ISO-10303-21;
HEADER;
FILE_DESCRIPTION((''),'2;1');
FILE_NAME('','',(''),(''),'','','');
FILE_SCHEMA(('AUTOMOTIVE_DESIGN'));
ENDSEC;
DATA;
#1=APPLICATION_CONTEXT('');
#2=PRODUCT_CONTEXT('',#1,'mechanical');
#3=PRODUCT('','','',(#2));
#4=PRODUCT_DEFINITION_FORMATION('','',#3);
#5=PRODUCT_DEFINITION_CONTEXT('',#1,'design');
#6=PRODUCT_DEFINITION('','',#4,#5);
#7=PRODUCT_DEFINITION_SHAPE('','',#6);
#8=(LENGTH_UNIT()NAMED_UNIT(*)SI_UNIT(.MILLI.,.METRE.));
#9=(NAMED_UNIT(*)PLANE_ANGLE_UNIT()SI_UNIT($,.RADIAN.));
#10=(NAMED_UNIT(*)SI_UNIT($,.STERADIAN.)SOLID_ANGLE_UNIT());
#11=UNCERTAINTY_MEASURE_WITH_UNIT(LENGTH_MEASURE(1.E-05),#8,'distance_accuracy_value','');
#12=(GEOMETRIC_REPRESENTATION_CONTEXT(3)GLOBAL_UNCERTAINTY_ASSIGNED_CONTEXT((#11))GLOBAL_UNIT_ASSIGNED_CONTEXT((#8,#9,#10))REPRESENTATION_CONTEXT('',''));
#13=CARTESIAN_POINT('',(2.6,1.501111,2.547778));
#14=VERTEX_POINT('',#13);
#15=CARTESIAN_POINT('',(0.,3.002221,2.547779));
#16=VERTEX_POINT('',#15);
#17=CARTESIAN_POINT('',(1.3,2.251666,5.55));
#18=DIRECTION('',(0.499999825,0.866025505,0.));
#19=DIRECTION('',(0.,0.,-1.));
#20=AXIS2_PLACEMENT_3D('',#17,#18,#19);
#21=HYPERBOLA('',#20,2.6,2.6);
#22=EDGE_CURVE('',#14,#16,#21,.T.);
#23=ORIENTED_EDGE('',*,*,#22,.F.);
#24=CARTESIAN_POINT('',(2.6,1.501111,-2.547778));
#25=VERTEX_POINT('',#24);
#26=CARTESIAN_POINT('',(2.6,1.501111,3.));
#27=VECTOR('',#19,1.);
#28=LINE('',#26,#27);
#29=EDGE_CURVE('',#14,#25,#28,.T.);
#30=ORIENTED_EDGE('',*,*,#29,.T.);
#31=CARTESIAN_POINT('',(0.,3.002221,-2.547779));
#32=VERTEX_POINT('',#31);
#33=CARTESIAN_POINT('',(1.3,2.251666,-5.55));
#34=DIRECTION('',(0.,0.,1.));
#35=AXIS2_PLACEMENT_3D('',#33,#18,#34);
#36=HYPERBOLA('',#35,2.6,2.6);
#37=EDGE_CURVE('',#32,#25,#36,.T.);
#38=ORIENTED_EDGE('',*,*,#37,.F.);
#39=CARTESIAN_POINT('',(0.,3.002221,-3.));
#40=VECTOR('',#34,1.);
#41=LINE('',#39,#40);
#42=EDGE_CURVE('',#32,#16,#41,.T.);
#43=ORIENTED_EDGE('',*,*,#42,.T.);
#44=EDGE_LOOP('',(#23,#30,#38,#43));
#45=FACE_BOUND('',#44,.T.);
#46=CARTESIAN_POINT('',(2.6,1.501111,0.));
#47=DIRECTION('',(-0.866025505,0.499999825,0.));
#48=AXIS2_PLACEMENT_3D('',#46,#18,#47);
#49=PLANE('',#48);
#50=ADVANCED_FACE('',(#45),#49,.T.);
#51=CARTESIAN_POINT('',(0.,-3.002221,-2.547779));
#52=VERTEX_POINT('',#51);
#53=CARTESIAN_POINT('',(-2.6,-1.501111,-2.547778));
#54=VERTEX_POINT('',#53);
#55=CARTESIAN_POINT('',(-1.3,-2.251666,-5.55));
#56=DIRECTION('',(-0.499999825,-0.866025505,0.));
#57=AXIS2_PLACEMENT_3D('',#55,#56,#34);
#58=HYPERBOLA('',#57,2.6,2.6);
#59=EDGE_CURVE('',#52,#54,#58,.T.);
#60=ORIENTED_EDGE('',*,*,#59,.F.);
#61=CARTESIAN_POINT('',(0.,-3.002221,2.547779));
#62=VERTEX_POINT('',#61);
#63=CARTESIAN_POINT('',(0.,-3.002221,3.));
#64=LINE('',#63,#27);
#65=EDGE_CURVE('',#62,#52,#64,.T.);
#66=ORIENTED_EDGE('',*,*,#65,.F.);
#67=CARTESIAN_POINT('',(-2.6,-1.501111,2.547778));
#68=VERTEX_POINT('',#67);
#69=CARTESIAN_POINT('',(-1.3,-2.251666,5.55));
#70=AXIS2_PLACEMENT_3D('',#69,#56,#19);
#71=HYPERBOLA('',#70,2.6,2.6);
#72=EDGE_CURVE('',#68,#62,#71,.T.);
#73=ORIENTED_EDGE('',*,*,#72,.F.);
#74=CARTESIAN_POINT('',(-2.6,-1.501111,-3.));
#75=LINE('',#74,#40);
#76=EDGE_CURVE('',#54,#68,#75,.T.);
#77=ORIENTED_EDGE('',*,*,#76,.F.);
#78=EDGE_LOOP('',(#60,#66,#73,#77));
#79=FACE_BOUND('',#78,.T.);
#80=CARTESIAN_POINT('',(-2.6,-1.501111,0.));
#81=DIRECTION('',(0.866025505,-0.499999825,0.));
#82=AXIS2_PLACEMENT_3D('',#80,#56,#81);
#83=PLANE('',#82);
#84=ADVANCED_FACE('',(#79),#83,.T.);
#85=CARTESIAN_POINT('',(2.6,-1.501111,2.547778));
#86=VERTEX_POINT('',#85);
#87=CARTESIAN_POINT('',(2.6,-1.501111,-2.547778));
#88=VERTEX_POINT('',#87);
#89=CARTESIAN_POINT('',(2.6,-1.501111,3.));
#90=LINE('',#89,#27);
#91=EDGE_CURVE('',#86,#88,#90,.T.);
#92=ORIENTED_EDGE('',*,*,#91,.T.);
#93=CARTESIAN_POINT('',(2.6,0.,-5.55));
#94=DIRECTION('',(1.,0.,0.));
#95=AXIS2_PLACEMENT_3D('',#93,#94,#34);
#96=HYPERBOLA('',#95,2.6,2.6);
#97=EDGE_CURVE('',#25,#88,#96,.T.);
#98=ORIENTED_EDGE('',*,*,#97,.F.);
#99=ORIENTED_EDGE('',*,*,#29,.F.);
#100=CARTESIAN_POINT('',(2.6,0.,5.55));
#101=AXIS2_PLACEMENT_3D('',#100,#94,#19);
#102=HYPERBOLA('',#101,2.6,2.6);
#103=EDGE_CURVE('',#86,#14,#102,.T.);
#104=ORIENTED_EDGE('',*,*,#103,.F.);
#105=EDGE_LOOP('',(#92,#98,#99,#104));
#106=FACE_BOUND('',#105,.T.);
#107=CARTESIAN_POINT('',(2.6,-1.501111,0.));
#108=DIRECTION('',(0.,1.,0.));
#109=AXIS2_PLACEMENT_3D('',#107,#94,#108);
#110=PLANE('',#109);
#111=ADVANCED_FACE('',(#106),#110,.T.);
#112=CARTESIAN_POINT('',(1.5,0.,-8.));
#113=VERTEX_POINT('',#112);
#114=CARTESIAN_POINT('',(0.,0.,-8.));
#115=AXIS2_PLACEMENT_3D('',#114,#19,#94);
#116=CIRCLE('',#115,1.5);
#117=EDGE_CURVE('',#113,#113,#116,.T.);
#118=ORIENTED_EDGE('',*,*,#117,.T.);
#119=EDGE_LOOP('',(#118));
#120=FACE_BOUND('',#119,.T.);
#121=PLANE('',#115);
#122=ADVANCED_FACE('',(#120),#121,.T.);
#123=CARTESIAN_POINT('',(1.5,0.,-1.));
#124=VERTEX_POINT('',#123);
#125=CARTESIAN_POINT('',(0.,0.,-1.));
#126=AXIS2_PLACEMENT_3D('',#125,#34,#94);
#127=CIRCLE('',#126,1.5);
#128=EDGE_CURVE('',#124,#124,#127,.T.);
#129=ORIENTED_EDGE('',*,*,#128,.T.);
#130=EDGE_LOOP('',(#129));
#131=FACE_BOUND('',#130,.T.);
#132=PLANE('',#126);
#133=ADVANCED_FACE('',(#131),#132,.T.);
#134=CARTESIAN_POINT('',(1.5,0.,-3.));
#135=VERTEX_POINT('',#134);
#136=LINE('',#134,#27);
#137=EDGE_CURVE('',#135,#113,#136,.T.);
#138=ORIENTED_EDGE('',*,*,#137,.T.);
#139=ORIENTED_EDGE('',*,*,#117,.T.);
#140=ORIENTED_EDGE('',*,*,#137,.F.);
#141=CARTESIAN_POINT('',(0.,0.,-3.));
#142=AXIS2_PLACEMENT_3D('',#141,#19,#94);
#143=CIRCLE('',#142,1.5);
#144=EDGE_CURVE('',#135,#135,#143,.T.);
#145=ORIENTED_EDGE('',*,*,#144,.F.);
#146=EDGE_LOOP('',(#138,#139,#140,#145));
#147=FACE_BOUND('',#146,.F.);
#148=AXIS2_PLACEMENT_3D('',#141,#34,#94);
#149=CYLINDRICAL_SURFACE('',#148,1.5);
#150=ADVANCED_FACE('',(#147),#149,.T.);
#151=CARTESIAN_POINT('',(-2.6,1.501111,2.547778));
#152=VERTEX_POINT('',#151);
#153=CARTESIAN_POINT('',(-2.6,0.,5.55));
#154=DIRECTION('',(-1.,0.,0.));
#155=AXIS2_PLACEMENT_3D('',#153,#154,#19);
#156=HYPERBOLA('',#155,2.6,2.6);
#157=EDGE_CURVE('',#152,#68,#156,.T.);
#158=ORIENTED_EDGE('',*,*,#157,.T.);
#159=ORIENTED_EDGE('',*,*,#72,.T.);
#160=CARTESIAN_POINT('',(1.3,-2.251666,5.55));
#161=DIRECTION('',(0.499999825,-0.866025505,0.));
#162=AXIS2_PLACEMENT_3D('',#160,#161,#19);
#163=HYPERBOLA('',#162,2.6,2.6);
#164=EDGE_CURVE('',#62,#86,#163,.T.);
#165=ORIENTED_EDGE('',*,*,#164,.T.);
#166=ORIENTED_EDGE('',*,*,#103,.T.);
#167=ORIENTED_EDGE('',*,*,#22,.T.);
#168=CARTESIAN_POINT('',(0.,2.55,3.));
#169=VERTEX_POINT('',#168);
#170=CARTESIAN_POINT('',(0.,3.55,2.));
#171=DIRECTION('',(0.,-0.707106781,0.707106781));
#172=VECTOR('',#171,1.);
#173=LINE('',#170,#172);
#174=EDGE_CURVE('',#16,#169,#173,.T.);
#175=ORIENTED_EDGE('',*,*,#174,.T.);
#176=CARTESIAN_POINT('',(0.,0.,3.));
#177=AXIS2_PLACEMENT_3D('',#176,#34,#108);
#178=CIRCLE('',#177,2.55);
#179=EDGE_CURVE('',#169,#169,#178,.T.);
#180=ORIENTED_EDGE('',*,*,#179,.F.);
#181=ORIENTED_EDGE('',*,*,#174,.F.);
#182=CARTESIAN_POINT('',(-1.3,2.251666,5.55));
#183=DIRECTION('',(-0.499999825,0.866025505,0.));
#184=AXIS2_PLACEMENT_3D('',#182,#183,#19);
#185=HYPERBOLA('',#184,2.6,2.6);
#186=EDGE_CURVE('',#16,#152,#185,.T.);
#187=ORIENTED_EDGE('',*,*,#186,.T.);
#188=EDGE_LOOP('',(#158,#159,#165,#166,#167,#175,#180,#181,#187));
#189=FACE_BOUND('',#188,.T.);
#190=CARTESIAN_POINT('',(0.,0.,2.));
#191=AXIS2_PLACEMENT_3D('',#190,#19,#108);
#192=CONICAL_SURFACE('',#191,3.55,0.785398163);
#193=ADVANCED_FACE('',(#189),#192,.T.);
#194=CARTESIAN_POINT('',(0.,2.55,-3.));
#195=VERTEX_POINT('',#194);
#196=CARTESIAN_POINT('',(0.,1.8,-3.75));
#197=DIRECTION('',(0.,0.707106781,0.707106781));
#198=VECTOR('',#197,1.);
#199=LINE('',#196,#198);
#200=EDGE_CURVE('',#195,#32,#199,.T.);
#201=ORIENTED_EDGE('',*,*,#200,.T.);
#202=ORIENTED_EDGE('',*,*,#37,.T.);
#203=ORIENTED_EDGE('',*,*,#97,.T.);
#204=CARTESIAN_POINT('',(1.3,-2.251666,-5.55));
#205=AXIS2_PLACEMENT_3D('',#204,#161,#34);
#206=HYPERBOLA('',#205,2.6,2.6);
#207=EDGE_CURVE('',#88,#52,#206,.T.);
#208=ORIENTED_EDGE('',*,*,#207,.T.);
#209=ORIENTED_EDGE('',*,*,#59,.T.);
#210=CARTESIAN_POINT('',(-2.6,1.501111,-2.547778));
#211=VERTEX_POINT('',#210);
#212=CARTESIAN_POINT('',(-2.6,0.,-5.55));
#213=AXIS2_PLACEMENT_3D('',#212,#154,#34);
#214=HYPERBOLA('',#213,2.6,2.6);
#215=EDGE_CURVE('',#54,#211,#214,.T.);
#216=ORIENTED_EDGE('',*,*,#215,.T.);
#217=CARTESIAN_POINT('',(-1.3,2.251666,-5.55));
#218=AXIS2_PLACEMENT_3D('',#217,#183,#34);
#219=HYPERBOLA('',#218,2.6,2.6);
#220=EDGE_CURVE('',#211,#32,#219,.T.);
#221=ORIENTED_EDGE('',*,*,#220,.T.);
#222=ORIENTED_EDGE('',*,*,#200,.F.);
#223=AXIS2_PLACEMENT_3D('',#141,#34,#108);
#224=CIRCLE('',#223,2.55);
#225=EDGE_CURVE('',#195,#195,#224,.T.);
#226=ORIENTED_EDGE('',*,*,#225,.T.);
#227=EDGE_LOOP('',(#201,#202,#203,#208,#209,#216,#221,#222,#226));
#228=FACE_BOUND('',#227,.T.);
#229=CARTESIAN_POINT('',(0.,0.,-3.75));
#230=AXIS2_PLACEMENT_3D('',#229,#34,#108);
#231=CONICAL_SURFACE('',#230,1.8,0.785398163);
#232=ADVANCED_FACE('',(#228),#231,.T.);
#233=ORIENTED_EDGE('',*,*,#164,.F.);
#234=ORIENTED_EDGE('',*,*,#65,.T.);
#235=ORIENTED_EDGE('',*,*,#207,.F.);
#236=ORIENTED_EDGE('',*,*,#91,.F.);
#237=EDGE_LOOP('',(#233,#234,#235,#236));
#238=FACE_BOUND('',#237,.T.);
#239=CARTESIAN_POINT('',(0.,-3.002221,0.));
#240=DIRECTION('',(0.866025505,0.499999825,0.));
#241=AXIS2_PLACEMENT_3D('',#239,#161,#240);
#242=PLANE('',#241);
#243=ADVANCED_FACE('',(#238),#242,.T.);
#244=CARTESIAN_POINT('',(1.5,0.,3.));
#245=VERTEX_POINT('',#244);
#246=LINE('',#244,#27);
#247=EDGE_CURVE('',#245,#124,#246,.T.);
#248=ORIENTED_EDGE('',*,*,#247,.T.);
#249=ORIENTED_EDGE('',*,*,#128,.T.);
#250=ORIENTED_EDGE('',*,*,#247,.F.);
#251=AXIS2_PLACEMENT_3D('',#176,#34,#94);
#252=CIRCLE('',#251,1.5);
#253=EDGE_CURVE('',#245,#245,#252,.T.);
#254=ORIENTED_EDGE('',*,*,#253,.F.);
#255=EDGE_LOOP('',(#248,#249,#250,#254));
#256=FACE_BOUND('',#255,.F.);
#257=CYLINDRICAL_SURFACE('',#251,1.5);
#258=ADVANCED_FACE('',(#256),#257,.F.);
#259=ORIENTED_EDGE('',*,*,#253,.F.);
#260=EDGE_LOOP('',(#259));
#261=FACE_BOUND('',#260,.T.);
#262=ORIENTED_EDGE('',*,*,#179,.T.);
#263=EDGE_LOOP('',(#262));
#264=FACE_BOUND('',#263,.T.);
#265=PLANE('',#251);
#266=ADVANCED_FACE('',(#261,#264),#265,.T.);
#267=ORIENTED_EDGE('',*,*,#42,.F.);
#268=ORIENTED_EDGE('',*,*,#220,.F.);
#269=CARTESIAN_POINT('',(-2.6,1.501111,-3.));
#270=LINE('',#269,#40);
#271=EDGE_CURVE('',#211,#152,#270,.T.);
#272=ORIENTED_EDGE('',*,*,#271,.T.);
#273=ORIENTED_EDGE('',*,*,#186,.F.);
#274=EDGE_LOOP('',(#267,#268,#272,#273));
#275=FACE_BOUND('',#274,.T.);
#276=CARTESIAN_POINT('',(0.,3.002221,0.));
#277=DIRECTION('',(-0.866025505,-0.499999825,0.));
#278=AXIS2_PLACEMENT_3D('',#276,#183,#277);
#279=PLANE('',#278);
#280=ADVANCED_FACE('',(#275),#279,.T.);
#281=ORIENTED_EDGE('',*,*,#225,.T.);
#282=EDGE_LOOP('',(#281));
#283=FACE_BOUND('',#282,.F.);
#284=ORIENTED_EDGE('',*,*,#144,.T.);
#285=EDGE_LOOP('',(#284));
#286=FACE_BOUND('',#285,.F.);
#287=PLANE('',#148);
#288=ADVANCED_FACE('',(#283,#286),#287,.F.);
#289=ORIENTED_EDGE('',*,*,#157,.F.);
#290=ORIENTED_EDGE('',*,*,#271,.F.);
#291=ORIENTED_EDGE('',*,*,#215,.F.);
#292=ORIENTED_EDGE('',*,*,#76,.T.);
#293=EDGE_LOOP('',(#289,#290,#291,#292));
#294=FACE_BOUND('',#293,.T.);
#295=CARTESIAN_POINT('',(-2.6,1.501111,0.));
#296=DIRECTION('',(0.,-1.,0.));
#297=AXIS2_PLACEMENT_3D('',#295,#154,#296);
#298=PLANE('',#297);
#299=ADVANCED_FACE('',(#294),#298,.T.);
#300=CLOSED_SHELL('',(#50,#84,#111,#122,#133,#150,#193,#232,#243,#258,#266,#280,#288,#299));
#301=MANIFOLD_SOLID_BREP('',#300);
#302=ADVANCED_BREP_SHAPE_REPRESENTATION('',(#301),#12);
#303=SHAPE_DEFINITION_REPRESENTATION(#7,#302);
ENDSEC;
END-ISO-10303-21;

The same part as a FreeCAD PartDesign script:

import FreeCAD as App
import Part
import Sketcher
from FreeCAD import Vector
Q = App.Units.Quantity


def add_polygon(sketch, points):
    """Adds a closed chain of lines whose ends are joined by coincident constraints."""
    first, n = sketch.GeometryCount, len(points)
    for a, b in zip(points, points[1:] + points[:1]):
        sketch.addGeometry(Part.LineSegment(App.Vector(*a, 0), App.Vector(*b, 0)), False)
    for i in range(n):
        sketch.addConstraint(Sketcher.Constraint("Coincident", first + i, 2, first + (i + 1) % n, 1))

doc = App.newDocument("Part")
body = doc.addObject("PartDesign::Body", "Body")

sketch1 = doc.addObject("Sketcher::SketchObject", "Sketch")
body.addObject(sketch1)
sketch1.AttachmentSupport = (doc.XY_Plane, [""])
sketch1.MapMode = "FlatFace"
add_polygon(sketch1, [(2.6, 1.5), (0, 3), (-2.6, 1.5), (-2.6, -1.5), (0, -3), (2.6, -1.5)])
sketch1.addConstraint([
    Sketcher.Constraint("Vertical", 2),
    Sketcher.Constraint("Vertical", 5),
    Sketcher.Constraint("Symmetric", 0, 2, 3, 2, -1, 1),
    Sketcher.Constraint("Symmetric", 1, 2, 4, 2, -1, 1),
    Sketcher.Constraint("PointOnObject", 0, 2, -2),
    Sketcher.Constraint("Parallel", 0, 3),
    Sketcher.Constraint("Horizontal", 2, 2, 4, 2),
    Sketcher.Constraint("Angle", 0, Q("150.000012 deg")),
    Sketcher.Constraint("DistanceX", 1, 2, -1, 1, 2.6),
    Sketcher.Constraint("DistanceY", 2, 2, 2, 1, 3.002222),
])
pad1 = doc.addObject("PartDesign::Pad", "Pad")
body.addObject(pad1)
pad1.Profile = sketch1
pad1.Length = 6
pad1.Midplane = True

sketch2 = doc.addObject("Sketcher::SketchObject", "Sketch001")
body.addObject(sketch2)
sketch2.AttachmentSupport = (doc.XY_Plane, [""])
sketch2.MapMode = "FlatFace"
sketch2.AttachmentOffset = App.Placement(Vector(0, 0, 3), App.Rotation())
sketch2.addGeometry(Part.Circle(Vector(0, 0, 0), Vector(0, 0, 1), 1.5), False)
sketch2.addConstraint([
    Sketcher.Constraint("Coincident", 0, 3, -1, 1),
    Sketcher.Constraint("Diameter", 0, 3.0),
])
pocket1 = doc.addObject("PartDesign::Pocket", "Pocket")
body.addObject(pocket1)
pocket1.Profile = sketch2
pocket1.Length = 4

sketch3 = doc.addObject("Sketcher::SketchObject", "Sketch002")
body.addObject(sketch3)
sketch3.AttachmentSupport = (doc.XY_Plane, [""])
sketch3.MapMode = "FlatFace"
sketch3.AttachmentOffset = App.Placement(Vector(0, 0, -3), App.Rotation())
sketch3.addGeometry(Part.Circle(Vector(0, 0, 0), Vector(0, 0, 1), 1.5), False)
sketch3.addConstraint([
    Sketcher.Constraint("Coincident", 0, 3, -1, 1),
    Sketcher.Constraint("Diameter", 0, 3.0),
])
pad2 = doc.addObject("PartDesign::Pad", "Pad001")
body.addObject(pad2)
pad2.Profile = sketch3
pad2.Length = 5
pad2.Reversed = True

sketch4 = doc.addObject("Sketcher::SketchObject", "Sketch003")
body.addObject(sketch4)
sketch4.AttachmentSupport = (doc.YZ_Plane, [""])
sketch4.MapMode = "FlatFace"
add_polygon(sketch4, [(4.8, 3.8), (1.8, 3.8), (3.5, 2), (3.5, -2), (1.8, -3.8), (4.8, -3.8)])
sketch4.addConstraint([
    Sketcher.Constraint("Horizontal", 0),
    Sketcher.Constraint("Vertical", 2),
    Sketcher.Constraint("Horizontal", 4),
    Sketcher.Constraint("Vertical", 5),
    Sketcher.Constraint("Symmetric", 0, 2, 3, 2, -1),
    Sketcher.Constraint("Perpendicular", 1, 3),
    Sketcher.Constraint("Equal", 1, 3),
    Sketcher.Constraint("DistanceX", 0, 2, 0, 1, 3.0),
    Sketcher.Constraint("DistanceY", 2, 2, 2, 1, 4.0),
    Sketcher.Constraint("DistanceY", 5, 1, 5, 2, 7.5),
    Sketcher.Constraint("DistanceX", -1, 1, 0, 2, 1.8),
])
groove = doc.addObject("PartDesign::Groove", "Groove")
body.addObject(groove)
groove.Profile = sketch4
groove.ReferenceAxis = (sketch4, ["V_Axis"])
groove.Angle = 360

doc.recompute()
